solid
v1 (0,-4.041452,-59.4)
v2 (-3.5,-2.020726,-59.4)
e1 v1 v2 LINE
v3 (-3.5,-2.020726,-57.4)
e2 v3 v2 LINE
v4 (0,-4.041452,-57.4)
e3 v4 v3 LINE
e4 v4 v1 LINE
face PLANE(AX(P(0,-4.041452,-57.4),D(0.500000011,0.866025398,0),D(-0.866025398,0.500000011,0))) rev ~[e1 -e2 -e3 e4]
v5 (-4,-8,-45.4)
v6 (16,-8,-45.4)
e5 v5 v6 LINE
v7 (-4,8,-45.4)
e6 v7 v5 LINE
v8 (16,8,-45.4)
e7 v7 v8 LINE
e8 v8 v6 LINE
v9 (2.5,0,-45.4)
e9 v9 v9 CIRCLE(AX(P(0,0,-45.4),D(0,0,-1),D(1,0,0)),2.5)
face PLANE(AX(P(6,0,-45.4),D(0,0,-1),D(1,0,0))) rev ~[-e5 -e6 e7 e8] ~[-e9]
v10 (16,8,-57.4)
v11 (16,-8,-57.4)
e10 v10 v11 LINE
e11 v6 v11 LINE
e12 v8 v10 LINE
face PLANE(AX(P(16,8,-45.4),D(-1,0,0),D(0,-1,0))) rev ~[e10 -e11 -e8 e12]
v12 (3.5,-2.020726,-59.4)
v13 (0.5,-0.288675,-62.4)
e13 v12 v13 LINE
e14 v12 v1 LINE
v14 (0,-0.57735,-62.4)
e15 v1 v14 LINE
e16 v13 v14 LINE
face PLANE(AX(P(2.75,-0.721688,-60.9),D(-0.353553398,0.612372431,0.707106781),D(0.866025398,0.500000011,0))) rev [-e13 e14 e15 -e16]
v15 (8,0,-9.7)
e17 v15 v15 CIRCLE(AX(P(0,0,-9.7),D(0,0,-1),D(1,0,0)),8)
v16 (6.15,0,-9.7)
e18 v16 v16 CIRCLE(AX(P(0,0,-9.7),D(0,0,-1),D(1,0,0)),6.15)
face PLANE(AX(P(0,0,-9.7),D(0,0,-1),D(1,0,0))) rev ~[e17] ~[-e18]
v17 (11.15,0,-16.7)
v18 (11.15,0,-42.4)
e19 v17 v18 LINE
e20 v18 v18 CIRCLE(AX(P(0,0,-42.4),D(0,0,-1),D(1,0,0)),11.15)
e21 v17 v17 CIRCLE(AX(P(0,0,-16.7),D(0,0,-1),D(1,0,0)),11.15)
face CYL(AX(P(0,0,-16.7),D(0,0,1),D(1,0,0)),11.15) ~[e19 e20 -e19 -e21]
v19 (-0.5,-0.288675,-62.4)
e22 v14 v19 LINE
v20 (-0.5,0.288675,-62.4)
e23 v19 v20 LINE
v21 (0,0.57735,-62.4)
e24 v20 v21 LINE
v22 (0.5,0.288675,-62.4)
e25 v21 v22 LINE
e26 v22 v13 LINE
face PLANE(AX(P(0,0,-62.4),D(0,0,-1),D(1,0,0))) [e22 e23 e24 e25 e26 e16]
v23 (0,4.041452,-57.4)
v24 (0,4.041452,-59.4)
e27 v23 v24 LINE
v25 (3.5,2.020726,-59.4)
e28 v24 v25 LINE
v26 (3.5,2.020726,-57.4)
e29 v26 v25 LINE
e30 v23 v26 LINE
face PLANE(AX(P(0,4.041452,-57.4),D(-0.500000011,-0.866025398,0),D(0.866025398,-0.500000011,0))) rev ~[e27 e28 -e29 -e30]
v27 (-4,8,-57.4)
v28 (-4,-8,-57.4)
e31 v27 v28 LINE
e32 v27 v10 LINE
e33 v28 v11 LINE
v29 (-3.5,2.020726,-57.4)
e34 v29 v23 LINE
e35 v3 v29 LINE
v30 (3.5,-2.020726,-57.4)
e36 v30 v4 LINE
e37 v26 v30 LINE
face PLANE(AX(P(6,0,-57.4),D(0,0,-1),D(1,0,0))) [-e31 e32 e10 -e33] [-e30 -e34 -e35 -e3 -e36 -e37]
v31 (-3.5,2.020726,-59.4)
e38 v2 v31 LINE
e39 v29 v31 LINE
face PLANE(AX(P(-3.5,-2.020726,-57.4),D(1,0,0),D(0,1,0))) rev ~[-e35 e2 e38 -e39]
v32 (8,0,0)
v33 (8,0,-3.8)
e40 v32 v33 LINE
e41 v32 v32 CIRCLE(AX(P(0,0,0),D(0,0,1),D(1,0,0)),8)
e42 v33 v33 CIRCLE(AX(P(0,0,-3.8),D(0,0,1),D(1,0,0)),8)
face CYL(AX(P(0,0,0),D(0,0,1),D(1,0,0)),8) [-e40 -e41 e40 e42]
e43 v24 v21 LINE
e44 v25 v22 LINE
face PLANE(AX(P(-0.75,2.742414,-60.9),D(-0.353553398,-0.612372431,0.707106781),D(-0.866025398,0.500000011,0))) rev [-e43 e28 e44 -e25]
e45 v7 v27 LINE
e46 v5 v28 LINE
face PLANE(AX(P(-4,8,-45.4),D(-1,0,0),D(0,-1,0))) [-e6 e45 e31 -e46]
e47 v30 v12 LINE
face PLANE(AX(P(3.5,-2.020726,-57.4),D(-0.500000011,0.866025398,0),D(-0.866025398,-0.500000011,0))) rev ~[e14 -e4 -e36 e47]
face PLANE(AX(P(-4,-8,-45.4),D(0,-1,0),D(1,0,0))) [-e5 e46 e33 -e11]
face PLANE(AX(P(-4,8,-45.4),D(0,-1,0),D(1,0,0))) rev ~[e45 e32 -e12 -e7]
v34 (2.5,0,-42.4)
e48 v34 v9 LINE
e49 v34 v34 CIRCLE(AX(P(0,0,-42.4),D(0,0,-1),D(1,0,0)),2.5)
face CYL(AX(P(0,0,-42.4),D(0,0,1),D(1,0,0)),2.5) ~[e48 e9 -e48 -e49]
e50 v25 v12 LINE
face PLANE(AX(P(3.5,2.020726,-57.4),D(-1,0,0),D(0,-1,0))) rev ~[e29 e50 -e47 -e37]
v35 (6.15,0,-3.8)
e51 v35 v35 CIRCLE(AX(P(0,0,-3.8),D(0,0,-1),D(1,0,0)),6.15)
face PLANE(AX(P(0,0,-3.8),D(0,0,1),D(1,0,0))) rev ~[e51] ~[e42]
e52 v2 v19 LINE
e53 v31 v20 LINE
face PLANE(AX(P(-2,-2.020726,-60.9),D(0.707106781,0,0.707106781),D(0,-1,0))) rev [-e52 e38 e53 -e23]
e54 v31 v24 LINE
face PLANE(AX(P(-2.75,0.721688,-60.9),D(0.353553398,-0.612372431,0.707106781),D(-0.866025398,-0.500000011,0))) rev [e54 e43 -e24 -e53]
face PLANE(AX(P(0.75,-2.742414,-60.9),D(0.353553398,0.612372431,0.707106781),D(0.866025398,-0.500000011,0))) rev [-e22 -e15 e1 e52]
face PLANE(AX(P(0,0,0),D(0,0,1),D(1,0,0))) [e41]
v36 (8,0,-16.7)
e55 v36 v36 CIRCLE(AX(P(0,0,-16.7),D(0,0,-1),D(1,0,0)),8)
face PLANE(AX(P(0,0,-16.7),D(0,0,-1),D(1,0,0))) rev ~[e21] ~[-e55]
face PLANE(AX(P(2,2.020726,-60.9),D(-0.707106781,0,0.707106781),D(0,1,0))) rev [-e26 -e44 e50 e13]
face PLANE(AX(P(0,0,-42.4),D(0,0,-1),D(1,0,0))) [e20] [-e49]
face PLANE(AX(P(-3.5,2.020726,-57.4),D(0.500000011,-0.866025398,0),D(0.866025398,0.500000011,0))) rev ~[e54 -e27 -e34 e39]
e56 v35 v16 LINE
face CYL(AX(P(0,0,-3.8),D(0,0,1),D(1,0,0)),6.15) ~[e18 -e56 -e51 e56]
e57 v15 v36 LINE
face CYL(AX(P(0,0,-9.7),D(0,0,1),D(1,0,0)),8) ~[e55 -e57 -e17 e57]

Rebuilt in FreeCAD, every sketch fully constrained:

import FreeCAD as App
import Part
import Sketcher
from FreeCAD import Vector
Q = App.Units.Quantity


def edges_at(feature, points):
    """Names of the edges that pass closest to the given points."""
    edges = feature.Shape.Edges
    near = lambda p: min(range(len(edges)), key=lambda i: edges[i].distToShape(Part.Vertex(*p))[0])
    return sorted({f"Edge{near(p) + 1}" for p in points})


def add_polygon(sketch, points):
    """Adds a closed chain of lines whose ends are joined by coincident constraints."""
    first, n = sketch.GeometryCount, len(points)
    for a, b in zip(points, points[1:] + points[:1]):
        sketch.addGeometry(Part.LineSegment(App.Vector(*a, 0), App.Vector(*b, 0)), False)
    for i in range(n):
        sketch.addConstraint(Sketcher.Constraint("Coincident", first + i, 2, first + (i + 1) % n, 1))

doc = App.newDocument("Part")
body = doc.addObject("PartDesign::Body", "Body")

# Sketch on XY plane
sketch1 = body.newObject("Sketcher::SketchObject", "Sketch")
sketch1.AttachmentSupport = (doc.getObject("XY_Plane"), [""])
sketch1.MapMode = "FlatFace"
sketch1.addGeometry(Part.Circle(Vector(0, 0, 0), Vector(0, 0, 1), 8), False)
sketch1.addConstraint([
    Sketcher.Constraint("Coincident", 0, 3, -1, 1),
    Sketcher.Constraint("Diameter", 0, 16.0),
])
pad1 = body.newObject("PartDesign::Pad", "Pad")
pad1.Profile = sketch1
pad1.Length = 3.8
pad1.Reversed = True

# Sketch on XY plane
sketch2 = body.newObject("Sketcher::SketchObject", "Sketch001")
sketch2.AttachmentSupport = (doc.getObject("XY_Plane"), [""])
sketch2.MapMode = "FlatFace"
sketch2.AttachmentOffset = App.Placement(Vector(0, 0, -3.8), App.Rotation())
sketch2.addGeometry(Part.Circle(Vector(0, 0, 0), Vector(0, 0, 1), 6), False)
sketch2.addConstraint([
    Sketcher.Constraint("Coincident", 0, 3, -1, 1),
    Sketcher.Constraint("Diameter", 0, 12.3),
])
pad2 = body.newObject("PartDesign::Pad", "Pad001")
pad2.Profile = sketch2
pad2.Length = 5.9
pad2.Reversed = True

# Sketch on XY plane
sketch3 = body.newObject("Sketcher::SketchObject", "Sketch002")
sketch3.AttachmentSupport = (doc.getObject("XY_Plane"), [""])
sketch3.MapMode = "FlatFace"
sketch3.AttachmentOffset = App.Placement(Vector(0, 0, -9.7), App.Rotation())
sketch3.addGeometry(Part.Circle(Vector(0, 0, 0), Vector(0, 0, 1), 8), False)
sketch3.addConstraint([
    Sketcher.Constraint("Coincident", 0, 3, -1, 1),
    Sketcher.Constraint("Diameter", 0, 16.0),
])
pad3 = body.newObject("PartDesign::Pad", "Pad002")
pad3.Profile = sketch3
pad3.Length = 7
pad3.Reversed = True

# Sketch on XY plane
sketch4 = body.newObject("Sketcher::SketchObject", "Sketch003")
sketch4.AttachmentSupport = (doc.getObject("XY_Plane"), [""])
sketch4.MapMode = "FlatFace"
sketch4.AttachmentOffset = App.Placement(Vector(0, 0, -16.7), App.Rotation())
sketch4.addGeometry(Part.Circle(Vector(0, 0, 0), Vector(0, 0, 1), 11), False)
sketch4.addConstraint([
    Sketcher.Constraint("Coincident", 0, 3, -1, 1),
    Sketcher.Constraint("Diameter", 0, 22.3),
])
pad4 = body.newObject("PartDesign::Pad", "Pad003")
pad4.Profile = sketch4
pad4.Length = 25.7
pad4.Reversed = True

# Sketch on XY plane
sketch5 = body.newObject("Sketcher::SketchObject", "Sketch004")
sketch5.AttachmentSupport = (doc.getObject("XY_Plane"), [""])
sketch5.MapMode = "FlatFace"
sketch5.AttachmentOffset = App.Placement(Vector(0, 0, -42.4), App.Rotation())
sketch5.addGeometry(Part.Circle(Vector(0, 0, 0), Vector(0, 0, 1), 2.5), False)
sketch5.addConstraint([
    Sketcher.Constraint("Coincident", 0, 3, -1, 1),
    Sketcher.Constraint("Diameter", 0, 5.0),
])
pad5 = body.newObject("PartDesign::Pad", "Pad004")
pad5.Profile = sketch5
pad5.Length = 3
pad5.Reversed = True

# Sketch on XY plane
sketch6 = body.newObject("Sketcher::SketchObject", "Sketch005")
sketch6.AttachmentSupport = (doc.getObject("XY_Plane"), [""])
sketch6.MapMode = "FlatFace"
sketch6.AttachmentOffset = App.Placement(Vector(0, 0, -45.4), App.Rotation())
add_polygon(sketch6, [(-4, -8), (-4, 8), (16, 8), (16, -8)])  # lines 0-3
sketch6.addConstraint([
    Sketcher.Constraint("Vertical", 0),
    Sketcher.Constraint("Horizontal", 1),
    Sketcher.Constraint("Vertical", 2),
    Sketcher.Constraint("Horizontal", 3),
    Sketcher.Constraint("DistanceX", 1, 1, 1, 2, 20.0),
    Sketcher.Constraint("DistanceY", 0, 1, 0, 2, 16.0),
    Sketcher.Constraint("DistanceX", 0, 2, -1, 1, 4.0),
    Sketcher.Constraint("DistanceY", -1, 1, 0, 2, 8.0),
])
pad6 = body.newObject("PartDesign::Pad", "Pad005")
pad6.Profile = sketch6
pad6.Length = 12
pad6.Reversed = True

# Sketch on XY plane
sketch7 = body.newObject("Sketcher::SketchObject", "Sketch006")
sketch7.AttachmentSupport = (doc.getObject("XY_Plane"), [""])
sketch7.MapMode = "FlatFace"
sketch7.AttachmentOffset = App.Placement(Vector(0, 0, -57.4), App.Rotation())
add_polygon(sketch7, [(0, 4), (3.5, 2), (3.5, -2), (0, -4), (-3.5, -2), (-3.5, 2)])  # lines 0-5
sketch7.addConstraint([
    Sketcher.Constraint("Vertical", 1),
    Sketcher.Constraint("Vertical", 4),
    Sketcher.Constraint("Symmetric", 0, 2, 3, 2, -1, 1),
    Sketcher.Constraint("Symmetric", 2, 2, 5, 2, -1, 1),
    Sketcher.Constraint("PointOnObject", 2, 2, -2),
    Sketcher.Constraint("Parallel", 2, 5),
    Sketcher.Constraint("Horizontal", 1, 2, 3, 2),
    Sketcher.Constraint("Angle", 0, Q("-30.000001 deg")),
    Sketcher.Constraint("DistanceX", 3, 2, 1, 2, 7.0),
    Sketcher.Constraint("DistanceY", 1, 2, 1, 1, 4.041452),
])
pad7 = body.newObject("PartDesign::Pad", "Pad006")
pad7.Profile = sketch7
pad7.Length = 5
pad7.Reversed = True
doc.recompute()

chamfer = body.newObject("PartDesign::Chamfer", "Chamfer")
chamfer.Base = (pad7, edges_at(pad7, [
    (3.5, 0, -62.4),
    (1.75, -3.031, -62.4),
    (-1.75, -3.031, -62.4),
    (-3.5, 0, -62.4),
    (1.75, 3.031, -62.4),
    (-1.75, 3.031, -62.4),
]))
chamfer.Size = 3

doc.recompute()
